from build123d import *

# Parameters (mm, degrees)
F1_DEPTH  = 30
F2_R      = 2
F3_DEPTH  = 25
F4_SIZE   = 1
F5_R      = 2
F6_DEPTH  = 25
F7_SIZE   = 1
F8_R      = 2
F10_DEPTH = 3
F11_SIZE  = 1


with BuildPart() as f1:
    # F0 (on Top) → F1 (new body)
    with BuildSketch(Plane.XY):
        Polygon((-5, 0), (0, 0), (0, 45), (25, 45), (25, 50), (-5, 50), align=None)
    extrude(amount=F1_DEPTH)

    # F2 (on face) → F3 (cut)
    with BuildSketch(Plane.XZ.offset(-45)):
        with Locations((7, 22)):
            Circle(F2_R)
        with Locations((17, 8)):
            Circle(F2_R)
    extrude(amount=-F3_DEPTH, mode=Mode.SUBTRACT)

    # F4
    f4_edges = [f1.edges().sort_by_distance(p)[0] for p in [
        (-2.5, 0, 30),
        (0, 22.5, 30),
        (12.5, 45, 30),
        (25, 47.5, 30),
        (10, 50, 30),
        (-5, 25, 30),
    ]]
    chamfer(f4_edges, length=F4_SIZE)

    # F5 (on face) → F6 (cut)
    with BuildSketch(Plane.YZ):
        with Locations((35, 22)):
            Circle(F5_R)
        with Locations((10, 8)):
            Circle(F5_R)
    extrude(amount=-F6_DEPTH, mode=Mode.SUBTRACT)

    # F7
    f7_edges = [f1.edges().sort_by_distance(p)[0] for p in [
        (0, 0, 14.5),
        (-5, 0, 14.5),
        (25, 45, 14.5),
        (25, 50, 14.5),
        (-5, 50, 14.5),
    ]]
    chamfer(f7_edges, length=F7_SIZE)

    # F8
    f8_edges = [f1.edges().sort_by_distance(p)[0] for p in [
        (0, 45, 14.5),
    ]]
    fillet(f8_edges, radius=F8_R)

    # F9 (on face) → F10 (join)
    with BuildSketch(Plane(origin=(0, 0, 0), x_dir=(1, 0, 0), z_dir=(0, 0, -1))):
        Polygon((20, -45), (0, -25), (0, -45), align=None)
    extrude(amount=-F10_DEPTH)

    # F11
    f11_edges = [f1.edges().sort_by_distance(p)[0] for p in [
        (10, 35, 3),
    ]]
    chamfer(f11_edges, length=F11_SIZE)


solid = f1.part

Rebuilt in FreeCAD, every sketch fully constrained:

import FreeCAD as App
import Part
import Sketcher

V = App.Vector
Q = App.Units.Quantity


def edges_at(feature, points):
    """Names of the edges that pass closest to the given points."""
    edges = feature.Shape.Edges
    near = lambda p: min(range(len(edges)), key=lambda i: edges[i].distToShape(Part.Vertex(*p))[0])
    return sorted({f"Edge{near(p) + 1}" for p in points})


def add_polygon(sketch, points):
    """Adds a closed chain of lines whose ends are joined by coincident constraints."""
    first, n = sketch.GeometryCount, len(points)
    for a, b in zip(points, points[1:] + points[:1]):
        sketch.addGeometry(Part.LineSegment(App.Vector(*a, 0), App.Vector(*b, 0)), False)
    for i in range(n):
        sketch.addConstraint(Sketcher.Constraint("Coincident", first + i, 2, first + (i + 1) % n, 1))

doc = App.newDocument("Part")
body = doc.addObject("PartDesign::Body", "Body")

# Sketch on XY plane
sketch1 = body.newObject("Sketcher::SketchObject", "Sketch")
sketch1.AttachmentSupport = (doc.getObject("XY_Plane"), [""])
sketch1.MapMode = "FlatFace"
add_polygon(sketch1, [(-5, 0), (0, 0), (0, 45), (25, 45), (25, 50), (-5, 50)])  # lines 0-5
sketch1.addConstraint([
    Sketcher.Constraint("Horizontal", 0),
    Sketcher.Constraint("Vertical", 1),
    Sketcher.Constraint("Horizontal", 2),
    Sketcher.Constraint("Vertical", 3),
    Sketcher.Constraint("Horizontal", 4),
    Sketcher.Constraint("Vertical", 5),
    Sketcher.Constraint("Coincident", 0, 2, -1, 1),
    Sketcher.Constraint("Equal", 0, 3),
    Sketcher.Constraint("DistanceX", 0, 1, 0, 2, Q("5 mm")),
    Sketcher.Constraint("DistanceX", 2, 1, 2, 2, Q("25 mm")),
    Sketcher.Constraint("DistanceY", 1, 1, 1, 2, Q("45 mm")),
])
pad1 = body.newObject("PartDesign::Pad", "Pad")
pad1.Profile = sketch1
pad1.Length = 30

# Sketch on XZ plane
sketch2 = body.newObject("Sketcher::SketchObject", "Sketch001")
sketch2.AttachmentSupport = (doc.getObject("XZ_Plane"), [""])
sketch2.MapMode = "FlatFace"
sketch2.AttachmentOffset = App.Placement(V(0, 0, -45), App.Rotation())
sketch2.addGeometry([
    Part.Circle(V(7, 22, 0), V(0, 0, 1), 2),
    Part.Circle(V(17, 8, 0), V(0, 0, 1), 2),
], False)
sketch2.addConstraint([
    Sketcher.Constraint("Equal", 0, 1),
    Sketcher.Constraint("Diameter", 0, Q("4 mm")),
    Sketcher.Constraint("DistanceX", -1, 1, 0, 3, Q("7 mm")),
    Sketcher.Constraint("DistanceY", -1, 1, 0, 3, Q("22 mm")),
    Sketcher.Constraint("DistanceX", -1, 1, 1, 3, Q("17 mm")),
    Sketcher.Constraint("DistanceY", -1, 1, 1, 3, Q("8 mm")),
])
pocket1 = body.newObject("PartDesign::Pocket", "Pocket")
pocket1.Profile = sketch2
pocket1.Length = 25
doc.recompute()

chamfer = body.newObject("PartDesign::Chamfer", "Chamfer")
chamfer.Base = (pocket1, edges_at(pocket1, [
    (-2.5, 0, 30),
    (0, 22.5, 30),
    (12.5, 45, 30),
    (25, 47.5, 30),
    (10, 50, 30),
    (-5, 25, 30),
]))
chamfer.Size = 1

# Sketch on YZ plane
sketch3 = body.newObject("Sketcher::SketchObject", "Sketch002")
sketch3.AttachmentSupport = (doc.getObject("YZ_Plane"), [""])
sketch3.MapMode = "FlatFace"
sketch3.addGeometry([
    Part.Circle(V(35, 22, 0), V(0, 0, 1), 2),
    Part.Circle(V(10, 8, 0), V(0, 0, 1), 2),
], False)
sketch3.addConstraint([
    Sketcher.Constraint("Equal", 0, 1),
    Sketcher.Constraint("Diameter", 0, Q("4 mm")),
    Sketcher.Constraint("DistanceX", -1, 1, 0, 3, Q("35 mm")),
    Sketcher.Constraint("DistanceY", -1, 1, 0, 3, Q("22 mm")),
    Sketcher.Constraint("DistanceX", -1, 1, 1, 3, Q("10 mm")),
    Sketcher.Constraint("DistanceY", -1, 1, 1, 3, Q("8 mm")),
])
pocket2 = body.newObject("PartDesign::Pocket", "Pocket001")
pocket2.Profile = sketch3
pocket2.Length = 25
doc.recompute()

chamfer2 = body.newObject("PartDesign::Chamfer", "Chamfer001")
chamfer2.Base = (pocket2, edges_at(pocket2, [
    (0, 0, 14.5),
    (-5, 0, 14.5),
    (25, 45, 14.5),
    (25, 50, 14.5),
    (-5, 50, 14.5),
]))
chamfer2.Size = 1
doc.recompute()

fillet = body.newObject("PartDesign::Fillet", "Fillet")
fillet.Base = (chamfer2, edges_at(chamfer2, [(0, 45, 14.5)]))
fillet.Radius = 2

# Sketch on XY plane
sketch4 = body.newObject("Sketcher::SketchObject", "Sketch003")
sketch4.AttachmentSupport = (doc.getObject("XY_Plane"), [""])
sketch4.MapMode = "FlatFace"
add_polygon(sketch4, [(20, 45), (0, 25), (0, 45)])  # lines 0-2
sketch4.addConstraint([
    Sketcher.Constraint("Vertical", 1),
    Sketcher.Constraint("Horizontal", 2),
    Sketcher.Constraint("PointOnObject", 0, 2, -2),
    Sketcher.Constraint("Equal", 2, 1),
    Sketcher.Constraint("DistanceX", 2, 1, 2, 2, Q("20 mm")),
    Sketcher.Constraint("DistanceY", -1, 1, 0, 2, Q("25 mm")),
])
pad2 = body.newObject("PartDesign::Pad", "Pad001")
pad2.Profile = sketch4
pad2.Length = 3
doc.recompute()

chamfer3 = body.newObject("PartDesign::Chamfer", "Chamfer002")
chamfer3.Base = (pad2, edges_at(pad2, [(10, 35, 3)]))
chamfer3.Size = 1

doc.recompute()
